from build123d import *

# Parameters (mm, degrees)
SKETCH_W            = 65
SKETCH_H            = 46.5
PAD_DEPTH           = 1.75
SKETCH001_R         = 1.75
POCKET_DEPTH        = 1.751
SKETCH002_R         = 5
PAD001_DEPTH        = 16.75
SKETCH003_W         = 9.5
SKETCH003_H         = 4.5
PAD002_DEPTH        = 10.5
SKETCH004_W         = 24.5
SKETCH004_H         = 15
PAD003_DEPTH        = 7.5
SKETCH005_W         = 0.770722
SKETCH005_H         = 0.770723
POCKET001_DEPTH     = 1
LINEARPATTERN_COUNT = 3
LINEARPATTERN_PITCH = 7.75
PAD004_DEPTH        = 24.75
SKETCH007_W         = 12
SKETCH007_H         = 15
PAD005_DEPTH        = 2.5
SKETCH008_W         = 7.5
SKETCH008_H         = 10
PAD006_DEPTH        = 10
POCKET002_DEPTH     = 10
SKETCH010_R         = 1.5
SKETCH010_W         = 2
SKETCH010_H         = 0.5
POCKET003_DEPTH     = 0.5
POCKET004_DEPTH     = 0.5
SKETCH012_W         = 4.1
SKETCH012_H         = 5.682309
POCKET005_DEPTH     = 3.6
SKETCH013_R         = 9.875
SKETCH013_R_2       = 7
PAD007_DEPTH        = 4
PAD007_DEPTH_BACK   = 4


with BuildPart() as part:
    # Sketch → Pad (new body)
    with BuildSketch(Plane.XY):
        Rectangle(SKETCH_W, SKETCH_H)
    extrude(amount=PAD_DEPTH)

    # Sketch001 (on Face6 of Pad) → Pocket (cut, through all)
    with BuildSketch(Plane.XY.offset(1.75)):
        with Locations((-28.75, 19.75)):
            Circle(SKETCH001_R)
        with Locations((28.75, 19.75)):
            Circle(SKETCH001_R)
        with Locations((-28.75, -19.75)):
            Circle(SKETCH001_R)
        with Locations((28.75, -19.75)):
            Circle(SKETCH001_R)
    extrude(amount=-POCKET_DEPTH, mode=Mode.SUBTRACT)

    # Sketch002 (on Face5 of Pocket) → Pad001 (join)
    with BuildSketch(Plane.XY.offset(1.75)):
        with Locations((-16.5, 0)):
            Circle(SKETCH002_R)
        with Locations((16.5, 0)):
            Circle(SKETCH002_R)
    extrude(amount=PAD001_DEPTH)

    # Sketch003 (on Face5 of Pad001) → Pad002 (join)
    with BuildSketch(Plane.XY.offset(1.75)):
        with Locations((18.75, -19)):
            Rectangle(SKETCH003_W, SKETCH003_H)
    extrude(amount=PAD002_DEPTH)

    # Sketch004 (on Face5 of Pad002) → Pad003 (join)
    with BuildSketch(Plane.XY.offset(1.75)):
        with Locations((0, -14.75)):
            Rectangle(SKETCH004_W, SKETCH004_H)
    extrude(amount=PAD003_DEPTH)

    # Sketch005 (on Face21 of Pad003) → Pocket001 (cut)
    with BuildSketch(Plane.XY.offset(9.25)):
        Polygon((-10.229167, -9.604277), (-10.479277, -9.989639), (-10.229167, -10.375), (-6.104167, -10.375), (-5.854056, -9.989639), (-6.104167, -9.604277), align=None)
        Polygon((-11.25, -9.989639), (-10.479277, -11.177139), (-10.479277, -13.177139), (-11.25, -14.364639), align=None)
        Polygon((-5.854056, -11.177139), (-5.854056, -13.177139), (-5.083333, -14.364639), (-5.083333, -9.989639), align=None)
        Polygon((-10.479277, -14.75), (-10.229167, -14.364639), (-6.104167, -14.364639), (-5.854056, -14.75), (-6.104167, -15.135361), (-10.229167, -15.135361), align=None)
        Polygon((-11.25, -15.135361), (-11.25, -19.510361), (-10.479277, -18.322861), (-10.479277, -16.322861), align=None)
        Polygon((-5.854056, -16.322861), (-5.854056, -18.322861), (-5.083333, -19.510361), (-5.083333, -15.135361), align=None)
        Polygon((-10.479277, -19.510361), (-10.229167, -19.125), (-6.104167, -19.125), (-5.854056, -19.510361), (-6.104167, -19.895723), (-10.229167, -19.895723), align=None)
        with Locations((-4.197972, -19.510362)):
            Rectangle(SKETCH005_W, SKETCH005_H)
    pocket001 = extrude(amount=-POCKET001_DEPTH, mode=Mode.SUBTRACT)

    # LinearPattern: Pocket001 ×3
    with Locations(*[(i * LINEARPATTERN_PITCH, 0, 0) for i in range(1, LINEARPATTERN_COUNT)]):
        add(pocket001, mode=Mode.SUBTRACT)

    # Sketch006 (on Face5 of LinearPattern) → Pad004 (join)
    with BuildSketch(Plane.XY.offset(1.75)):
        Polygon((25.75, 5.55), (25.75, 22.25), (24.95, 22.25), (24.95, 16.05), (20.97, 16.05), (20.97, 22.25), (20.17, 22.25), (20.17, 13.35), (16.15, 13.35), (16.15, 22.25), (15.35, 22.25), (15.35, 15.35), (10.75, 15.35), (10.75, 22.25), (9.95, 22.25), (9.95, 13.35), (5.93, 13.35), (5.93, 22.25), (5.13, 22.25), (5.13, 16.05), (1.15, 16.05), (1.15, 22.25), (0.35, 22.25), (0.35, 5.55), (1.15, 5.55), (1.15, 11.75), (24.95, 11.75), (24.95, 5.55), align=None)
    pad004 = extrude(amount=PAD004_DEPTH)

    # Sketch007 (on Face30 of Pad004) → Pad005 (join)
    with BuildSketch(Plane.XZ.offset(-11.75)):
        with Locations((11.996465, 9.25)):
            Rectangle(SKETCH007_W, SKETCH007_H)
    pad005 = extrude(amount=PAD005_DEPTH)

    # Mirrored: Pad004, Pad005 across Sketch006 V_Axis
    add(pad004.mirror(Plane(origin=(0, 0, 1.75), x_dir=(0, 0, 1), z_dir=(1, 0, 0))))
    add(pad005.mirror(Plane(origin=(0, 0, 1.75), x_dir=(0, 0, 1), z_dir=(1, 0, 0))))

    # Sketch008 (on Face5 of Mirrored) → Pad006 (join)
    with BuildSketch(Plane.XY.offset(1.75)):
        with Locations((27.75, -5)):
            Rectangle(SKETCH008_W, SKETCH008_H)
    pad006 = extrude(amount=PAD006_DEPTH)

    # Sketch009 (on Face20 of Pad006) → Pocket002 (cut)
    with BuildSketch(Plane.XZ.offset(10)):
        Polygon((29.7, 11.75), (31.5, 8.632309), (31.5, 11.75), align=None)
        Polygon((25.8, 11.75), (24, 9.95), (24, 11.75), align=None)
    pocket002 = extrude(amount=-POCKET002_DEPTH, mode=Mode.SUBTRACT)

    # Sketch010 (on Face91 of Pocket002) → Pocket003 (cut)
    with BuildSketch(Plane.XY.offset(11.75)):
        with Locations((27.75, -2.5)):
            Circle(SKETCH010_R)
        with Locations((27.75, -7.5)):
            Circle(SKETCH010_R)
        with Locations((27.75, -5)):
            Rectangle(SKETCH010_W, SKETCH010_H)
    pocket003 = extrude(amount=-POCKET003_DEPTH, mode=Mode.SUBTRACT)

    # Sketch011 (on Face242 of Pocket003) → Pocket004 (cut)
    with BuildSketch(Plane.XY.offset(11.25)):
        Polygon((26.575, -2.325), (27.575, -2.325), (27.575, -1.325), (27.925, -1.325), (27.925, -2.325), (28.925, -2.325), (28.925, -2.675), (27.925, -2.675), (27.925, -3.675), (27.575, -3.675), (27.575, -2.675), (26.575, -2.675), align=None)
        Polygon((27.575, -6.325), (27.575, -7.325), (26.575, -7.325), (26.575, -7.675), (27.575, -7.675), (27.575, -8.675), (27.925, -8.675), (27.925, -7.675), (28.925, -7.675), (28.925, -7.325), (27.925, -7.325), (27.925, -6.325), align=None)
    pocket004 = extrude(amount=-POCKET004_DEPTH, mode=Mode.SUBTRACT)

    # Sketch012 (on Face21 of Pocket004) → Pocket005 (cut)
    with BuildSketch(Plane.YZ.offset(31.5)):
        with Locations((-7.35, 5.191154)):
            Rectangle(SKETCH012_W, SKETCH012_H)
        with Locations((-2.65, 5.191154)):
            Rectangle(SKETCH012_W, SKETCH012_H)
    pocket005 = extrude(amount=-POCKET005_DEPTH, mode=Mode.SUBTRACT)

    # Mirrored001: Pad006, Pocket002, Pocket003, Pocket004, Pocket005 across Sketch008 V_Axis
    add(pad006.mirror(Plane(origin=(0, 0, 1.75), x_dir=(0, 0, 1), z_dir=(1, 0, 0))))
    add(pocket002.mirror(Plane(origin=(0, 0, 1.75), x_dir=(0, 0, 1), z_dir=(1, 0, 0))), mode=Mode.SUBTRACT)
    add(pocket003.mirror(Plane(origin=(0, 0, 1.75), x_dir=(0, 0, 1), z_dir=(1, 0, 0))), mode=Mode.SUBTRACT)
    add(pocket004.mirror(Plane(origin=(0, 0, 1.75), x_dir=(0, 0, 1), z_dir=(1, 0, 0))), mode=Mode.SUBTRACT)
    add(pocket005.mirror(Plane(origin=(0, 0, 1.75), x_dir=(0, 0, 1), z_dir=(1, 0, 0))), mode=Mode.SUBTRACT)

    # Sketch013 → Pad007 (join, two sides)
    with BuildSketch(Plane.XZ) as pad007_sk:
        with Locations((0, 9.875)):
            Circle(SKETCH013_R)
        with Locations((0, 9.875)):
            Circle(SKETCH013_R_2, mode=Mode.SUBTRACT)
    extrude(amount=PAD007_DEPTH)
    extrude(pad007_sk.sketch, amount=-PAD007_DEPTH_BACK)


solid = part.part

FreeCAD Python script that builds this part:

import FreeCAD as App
import Part
import Sketcher
Q = App.Units.Quantity


def add_polygon(sketch, points):
    """Adds a closed chain of lines whose ends are joined by coincident constraints."""
    first, n = sketch.GeometryCount, len(points)
    for a, b in zip(points, points[1:] + points[:1]):
        sketch.addGeometry(Part.LineSegment(App.Vector(*a, 0), App.Vector(*b, 0)), False)
    for i in range(n):
        sketch.addConstraint(Sketcher.Constraint("Coincident", first + i, 2, first + (i + 1) % n, 1))

doc = App.newDocument("Part")
body = doc.addObject("PartDesign::Body", "Body")

sketch1 = doc.addObject("Sketcher::SketchObject", "Sketch")
body.addObject(sketch1)
sketch1.AttachmentSupport = (doc.XY_Plane, [""])
sketch1.MapMode = "FlatFace"
add_polygon(sketch1, [(-32, 23), (-32, -23), (32, -23), (32, 23)])
sketch1.addConstraint(Sketcher.Constraint("Vertical", 0))
sketch1.addConstraint(Sketcher.Constraint("Horizontal", 1))
sketch1.addConstraint(Sketcher.Constraint("Vertical", 2))
sketch1.addConstraint(Sketcher.Constraint("Horizontal", 3))
sketch1.addConstraint(Sketcher.Constraint("Symmetric", 0, 2, 2, 2, -1, 1))
sketch1.addConstraint(Sketcher.Constraint("DistanceX", 1, 1, 1, 2, 65.0))
sketch1.addConstraint(Sketcher.Constraint("DistanceY", 0, 2, 0, 1, 46.5))
pad1 = doc.addObject("PartDesign::Pad", "Pad")
body.addObject(pad1)
pad1.Profile = sketch1
pad1.Length = 1.75

sketch2 = doc.addObject("Sketcher::SketchObject", "Sketch001")
body.addObject(sketch2)
sketch2.AttachmentSupport = (doc.XY_Plane, [""])
sketch2.MapMode = "FlatFace"
sketch2.AttachmentOffset = App.Placement(App.Vector(0, 0, 1.75), App.Rotation())
sketch2.addGeometry(Part.Circle(App.Vector(-28.8, 19.8, 0), App.Vector(0, 0, 1), 1.8), False)
sketch2.addGeometry(Part.Circle(App.Vector(28.8, 19.8, 0), App.Vector(0, 0, 1), 1.8), False)
sketch2.addGeometry(Part.Circle(App.Vector(-28.8, -19.8, 0), App.Vector(0, 0, 1), 1.8), False)
sketch2.addGeometry(Part.Circle(App.Vector(28.8, -19.8, 0), App.Vector(0, 0, 1), 1.8), False)
sketch2.addConstraint(Sketcher.Constraint("Equal", 0, 1))
sketch2.addConstraint(Sketcher.Constraint("Equal", 1, 2))
sketch2.addConstraint(Sketcher.Constraint("Equal", 2, 3))
sketch2.addConstraint(Sketcher.Constraint("Symmetric", 1, 3, 2, 3, -1, 1))
sketch2.addConstraint(Sketcher.Constraint("Symmetric", 0, 3, 3, 3, -1, 1))
sketch2.addConstraint(Sketcher.Constraint("Symmetric", 0, 3, 1, 3, -2))
sketch2.addConstraint(Sketcher.Constraint("Diameter", 0, 3.5))
sketch2.addConstraint(Sketcher.Constraint("DistanceX", 0, 3, 1, 3, 57.5))
sketch2.addConstraint(Sketcher.Constraint("DistanceY", 2, 3, 0, 3, 39.5))
pocket1 = doc.addObject("PartDesign::Pocket", "Pocket")
body.addObject(pocket1)
pocket1.Profile = sketch2
pocket1.Type = "ThroughAll"

sketch3 = doc.addObject("Sketcher::SketchObject", "Sketch002")
body.addObject(sketch3)
sketch3.AttachmentSupport = (doc.XY_Plane, [""])
sketch3.MapMode = "FlatFace"
sketch3.AttachmentOffset = App.Placement(App.Vector(0, 0, 1.75), App.Rotation())
sketch3.addGeometry(Part.Circle(App.Vector(-16, 0, 0), App.Vector(0, 0, 1), 5), False)
sketch3.addGeometry(Part.Circle(App.Vector(16, 0, 0), App.Vector(0, 0, 1), 5), False)
sketch3.addConstraint(Sketcher.Constraint("Equal", 0, 1))
sketch3.addConstraint(Sketcher.Constraint("Symmetric", 0, 3, 1, 3, -1, 1))
sketch3.addConstraint(Sketcher.Constraint("PointOnObject", 0, 3, -1))
sketch3.addConstraint(Sketcher.Constraint("Diameter", 0, 10.0))
sketch3.addConstraint(Sketcher.Constraint("DistanceX", 0, 3, 1, 3, 33.0))
pad2 = doc.addObject("PartDesign::Pad", "Pad001")
body.addObject(pad2)
pad2.Profile = sketch3
pad2.Length = 16.75

sketch4 = doc.addObject("Sketcher::SketchObject", "Sketch003")
body.addObject(sketch4)
sketch4.AttachmentSupport = (doc.XY_Plane, [""])
sketch4.MapMode = "FlatFace"
sketch4.AttachmentOffset = App.Placement(App.Vector(0, 0, 1.75), App.Rotation())
add_polygon(sketch4, [(14, -16.8), (14, -21.2), (23.5, -21.2), (23.5, -16.8)])
sketch4.addConstraint(Sketcher.Constraint("Vertical", 0))
sketch4.addConstraint(Sketcher.Constraint("Horizontal", 1))
sketch4.addConstraint(Sketcher.Constraint("Vertical", 2))
sketch4.addConstraint(Sketcher.Constraint("Horizontal", 3))
sketch4.addConstraint(Sketcher.Constraint("DistanceX", 1, 1, 1, 2, 9.5))
sketch4.addConstraint(Sketcher.Constraint("DistanceY", 0, 2, 0, 1, 4.5))
sketch4.addConstraint(Sketcher.Constraint("DistanceX", -1, 1, 0, 2, 14.0))
sketch4.addConstraint(Sketcher.Constraint("DistanceY", 0, 2, -1, 1, 21.25))
pad3 = doc.addObject("PartDesign::Pad", "Pad002")
body.addObject(pad3)
pad3.Profile = sketch4
pad3.Length = 10.5

sketch5 = doc.addObject("Sketcher::SketchObject", "Sketch004")
body.addObject(sketch5)
sketch5.AttachmentSupport = (doc.XY_Plane, [""])
sketch5.MapMode = "FlatFace"
sketch5.AttachmentOffset = App.Placement(App.Vector(0, 0, 1.75), App.Rotation())
add_polygon(sketch5, [(-12, -7), (-12, -22), (12, -22), (12, -7)])
sketch5.addConstraint(Sketcher.Constraint("Vertical", 0))
sketch5.addConstraint(Sketcher.Constraint("Horizontal", 1))
sketch5.addConstraint(Sketcher.Constraint("Vertical", 2))
sketch5.addConstraint(Sketcher.Constraint("Horizontal", 3))
sketch5.addConstraint(Sketcher.Constraint("DistanceY", 0, 2, 0, 1, 15.0))
sketch5.addConstraint(Sketcher.Constraint("DistanceX", 1, 1, 1, 2, 24.5))
sketch5.addConstraint(Sketcher.Constraint("DistanceX", 0, 2, -1, 1, 12.25))
sketch5.addConstraint(Sketcher.Constraint("DistanceY", 0, 2, -1, 1, 22.25))
pad4 = doc.addObject("PartDesign::Pad", "Pad003")
body.addObject(pad4)
pad4.Profile = sketch5
pad4.Length = 7.5

sketch6 = doc.addObject("Sketcher::SketchObject", "Sketch005")
body.addObject(sketch6)
sketch6.AttachmentSupport = (doc.XY_Plane, [""])
sketch6.MapMode = "FlatFace"
sketch6.AttachmentOffset = App.Placement(App.Vector(0, 0, 9.25), App.Rotation())
add_polygon(sketch6, [(-10.23, -9.6), (-10.48, -9.99), (-10.23, -10.38), (-6.1, -10.38), (-5.85, -9.99), (-6.1, -9.6)])
add_polygon(sketch6, [(-10.48, -11.18), (-11.25, -9.99), (-11.25, -14.36), (-10.48, -13.18)])
add_polygon(sketch6, [(-5.85, -11.18), (-5.85, -13.18), (-5.08, -14.36), (-5.08, -9.99)])
add_polygon(sketch6, [(-10.23, -14.36), (-10.48, -14.75), (-10.23, -15.14), (-6.1, -15.14), (-5.85, -14.75), (-6.1, -14.36)])
add_polygon(sketch6, [(-11.25, -15.14), (-11.25, -19.51), (-10.48, -18.32), (-10.48, -16.32)])
add_polygon(sketch6, [(-5.85, -16.32), (-5.85, -18.32), (-5.08, -19.51), (-5.08, -15.14)])
add_polygon(sketch6, [(-10.23, -19.12), (-10.48, -19.51), (-10.23, -19.9), (-6.1, -19.9), (-5.85, -19.51), (-6.1, -19.12)])
add_polygon(sketch6, [(-4.58, -19.13), (-4.58, -19.9), (-3.81, -19.9), (-3.81, -19.13)])
sketch6.addConstraint(Sketcher.Constraint("Horizontal", 2))
sketch6.addConstraint(Sketcher.Constraint("Horizontal", 5))
sketch6.addConstraint(Sketcher.Constraint("Vertical", 7))
sketch6.addConstraint(Sketcher.Constraint("Vertical", 9))
sketch6.addConstraint(Sketcher.Constraint("Vertical", 10))
sketch6.addConstraint(Sketcher.Constraint("Vertical", 12))
sketch6.addConstraint(Sketcher.Constraint("Horizontal", 16))
sketch6.addConstraint(Sketcher.Constraint("Horizontal", 19))
sketch6.addConstraint(Sketcher.Constraint("Vertical", 20))
sketch6.addConstraint(Sketcher.Constraint("Vertical", 22))
sketch6.addConstraint(Sketcher.Constraint("Vertical", 24))
sketch6.addConstraint(Sketcher.Constraint("Vertical", 26))
sketch6.addConstraint(Sketcher.Constraint("Horizontal", 30))
sketch6.addConstraint(Sketcher.Constraint("Horizontal", 33))
sketch6.addConstraint(Sketcher.Constraint("Vertical", 34))
sketch6.addConstraint(Sketcher.Constraint("Horizontal", 35))
sketch6.addConstraint(Sketcher.Constraint("Vertical", 36))
sketch6.addConstraint(Sketcher.Constraint("Horizontal", 37))
sketch6.addConstraint(Sketcher.Constraint("Parallel", 1, 4))
sketch6.addConstraint(Sketcher.Constraint("Parallel", 4, 6))
sketch6.addConstraint(Sketcher.Constraint("Parallel", 3, 8))
sketch6.addConstraint(Sketcher.Constraint("Parallel", 6, 11))
sketch6.addConstraint(Sketcher.Constraint("Parallel", 8, 13))
sketch6.addConstraint(Sketcher.Constraint("Parallel", 13, 14))
sketch6.addConstraint(Sketcher.Constraint("Parallel", 11, 15))
sketch6.addConstraint(Sketcher.Constraint("Parallel", 14, 17))
sketch6.addConstraint(Sketcher.Constraint("Parallel", 15, 18))
sketch6.addConstraint(Sketcher.Constraint("Parallel", 17, 21))
sketch6.addConstraint(Sketcher.Constraint("Parallel", 18, 23))
sketch6.addConstraint(Sketcher.Constraint("Parallel", 23, 25))
sketch6.addConstraint(Sketcher.Constraint("Parallel", 21, 27))
sketch6.addConstraint(Sketcher.Constraint("Parallel", 27, 28))
sketch6.addConstraint(Sketcher.Constraint("Parallel", 15, 29))
sketch6.addConstraint(Sketcher.Constraint("Parallel", 28, 31))
sketch6.addConstraint(Sketcher.Constraint("Parallel", 25, 32))
sketch6.addConstraint(Sketcher.Constraint("Horizontal", 0, 2, 3, 2))
sketch6.addConstraint(Sketcher.Constraint("Horizontal", 3, 2, 6, 2))
sketch6.addConstraint(Sketcher.Constraint("Horizontal", 8, 2, 10, 2))
sketch6.addConstraint(Sketcher.Constraint("Horizontal", 7, 2, 11, 2))
sketch6.addConstraint(Sketcher.Constraint("Horizontal", 6, 2, 12, 2))
sketch6.addConstraint(Sketcher.Constraint("Horizontal", 9, 2, 13, 2))
sketch6.addConstraint(Sketcher.Constraint("Horizontal", 14, 2, 17, 2))
sketch6.addConstraint(Sketcher.Constraint("Horizontal", 11, 2, 18, 2))
sketch6.addConstraint(Sketcher.Constraint("Horizontal", 16, 2, 23, 2))
sketch6.addConstraint(Sketcher.Constraint("Horizontal", 21, 2, 24, 2))
sketch6.addConstraint(Sketcher.Constraint("Horizontal", 20, 2, 25, 2))
sketch6.addConstraint(Sketcher.Constraint("Horizontal", 23, 2, 26, 2))
sketch6.addConstraint(Sketcher.Constraint("Horizontal", 25, 2, 28, 2))
sketch6.addConstraint(Sketcher.Constraint("Horizontal", 28, 2, 31, 2))
sketch6.addConstraint(Sketcher.Constraint("Horizontal", 30, 2, 34, 2))
sketch6.addConstraint(Sketcher.Constraint("Horizontal", 33, 2, 36, 2))
sketch6.addConstraint(Sketcher.Constraint("Vertical", 2, 2, 4, 2))
sketch6.addConstraint(Sketcher.Constraint("Vertical", 1, 2, 5, 2))
sketch6.addConstraint(Sketcher.Constraint("Vertical", 0, 2, 8, 2))
sketch6.addConstraint(Sketcher.Constraint("Vertical", 3, 2, 10, 2))
sketch6.addConstraint(Sketcher.Constraint("Vertical", 9, 2, 14, 2))
sketch6.addConstraint(Sketcher.Constraint("Vertical", 5, 2, 15, 2))
sketch6.addConstraint(Sketcher.Constraint("Vertical", 4, 2, 16, 2))
sketch6.addConstraint(Sketcher.Constraint("Vertical", 16, 2, 18, 2))
sketch6.addConstraint(Sketcher.Constraint("Vertical", 7, 2, 20, 2))
sketch6.addConstraint(Sketcher.Constraint("Vertical", 14, 2, 21, 2))
sketch6.addConstraint(Sketcher.Constraint("Vertical", 17, 2, 24, 2))
sketch6.addConstraint(Sketcher.Constraint("Vertical", 22, 2, 28, 2))
sketch6.addConstraint(Sketcher.Constraint("Vertical", 19, 2, 29, 2))
sketch6.addConstraint(Sketcher.Constraint("Vertical", 18, 2, 30, 2))
sketch6.addConstraint(Sketcher.Constraint("Vertical", 30, 2, 32, 2))
sketch6.addConstraint(Sketcher.Constraint("Equal", 12, 20))
sketch6.addConstraint(Sketcher.Constraint("Equal", 37, 34))
sketch6.addConstraint(Sketcher.Constraint("DistanceY", 9, 1, 9, 2, 2.0))
sketch6.addConstraint(Sketcher.Constraint("DistanceX", 25, 2, 34, 2, 0.5))
sketch6.addConstraint(Sketcher.Constraint("DistanceX", 2, 1, 2, 2, 4.125))
sketch6.addConstraint(Sketcher.Constraint("DistanceY", 7, 2, 7, 1, 4.375))
sketch6.addConstraint(Sketcher.Constraint("DistanceX", 6, 2, -1, 1, 11.25))
sketch6.addConstraint(Sketcher.Constraint("DistanceY", 14, 2, -1, 1, 14.75))
sketch6.addConstraint(Sketcher.Constraint("DistanceX", 35, 1, 35, 2, 0.770722))
sketch6.addConstraint(Sketcher.Constraint("Distance", 0, 0.459411))
pocket2 = doc.addObject("PartDesign::Pocket", "Pocket001")
body.addObject(pocket2)
pocket2.Profile = sketch6
pocket2.Length = 1
doc.recompute()

linearpattern = doc.addObject("PartDesign::LinearPattern", "LinearPattern")
body.addObject(linearpattern)
linearpattern.Originals = [pocket2]
linearpattern.Direction = (doc.X_Axis, [""])
linearpattern.Mode = "offset"
linearpattern.Offset = 7.75
linearpattern.Occurrences = 3
body.Tip = linearpattern

sketch7 = doc.addObject("Sketcher::SketchObject", "Sketch006")
body.addObject(sketch7)
sketch7.AttachmentSupport = (doc.XY_Plane, [""])
sketch7.MapMode = "FlatFace"
sketch7.AttachmentOffset = App.Placement(App.Vector(0, 0, 1.75), App.Rotation())
add_polygon(sketch7, [(25.8, 5.5), (25.8, 22.2), (24.9, 22.2), (24.9, 16.1), (21, 16.1), (21, 22.2), (20.2, 22.2), (20.2, 13.3), (16.1, 13.3), (16.1, 22.2), (15.3, 22.2), (15.3, 15.3), (10.8, 15.3), (10.8, 22.2), (9.9, 22.2), (9.9, 13.3), (5.9, 13.3), (5.9, 22.2), (5.1, 22.2), (5.1, 16.1), (1.1, 16.1), (1.1, 22.2), (0.3, 22.2), (0.3, 5.5), (1.1, 5.5), (1.1, 11.8), (24.9, 11.8), (24.9, 5.5)])
sketch7.addConstraint(Sketcher.Constraint("Vertical", 0))
sketch7.addConstraint(Sketcher.Constraint("Horizontal", 1))
sketch7.addConstraint(Sketcher.Constraint("Vertical", 2))
sketch7.addConstraint(Sketcher.Constraint("Horizontal", 3))
sketch7.addConstraint(Sketcher.Constraint("Vertical", 4))
sketch7.addConstraint(Sketcher.Constraint("Horizontal", 5))
sketch7.addConstraint(Sketcher.Constraint("Vertical", 6))
sketch7.addConstraint(Sketcher.Constraint("Horizontal", 7))
sketch7.addConstraint(Sketcher.Constraint("Vertical", 8))
sketch7.addConstraint(Sketcher.Constraint("Horizontal", 9))
sketch7.addConstraint(Sketcher.Constraint("Vertical", 10))
sketch7.addConstraint(Sketcher.Constraint("Horizontal", 11))
sketch7.addConstraint(Sketcher.Constraint("Vertical", 12))
sketch7.addConstraint(Sketcher.Constraint("Horizontal", 13))
sketch7.addConstraint(Sketcher.Constraint("Vertical", 14))
sketch7.addConstraint(Sketcher.Constraint("Horizontal", 15))
sketch7.addConstraint(Sketcher.Constraint("Vertical", 16))
sketch7.addConstraint(Sketcher.Constraint("Horizontal", 17))
sketch7.addConstraint(Sketcher.Constraint("Vertical", 18))
sketch7.addConstraint(Sketcher.Constraint("Horizontal", 19))
sketch7.addConstraint(Sketcher.Constraint("Vertical", 20))
sketch7.addConstraint(Sketcher.Constraint("Horizontal", 21))
sketch7.addConstraint(Sketcher.Constraint("Vertical", 22))
sketch7.addConstraint(Sketcher.Constraint("Horizontal", 23))
sketch7.addConstraint(Sketcher.Constraint("Vertical", 24))
sketch7.addConstraint(Sketcher.Constraint("Horizontal", 25))
sketch7.addConstraint(Sketcher.Constraint("Vertical", 26))
sketch7.addConstraint(Sketcher.Constraint("Horizontal", 27))
sketch7.addConstraint(Sketcher.Constraint("Horizontal", 1, 2, 4, 2))
sketch7.addConstraint(Sketcher.Constraint("Horizontal", 5, 2, 8, 2))
sketch7.addConstraint(Sketcher.Constraint("Horizontal", 9, 2, 12, 2))
sketch7.addConstraint(Sketcher.Constraint("Horizontal", 7, 2, 14, 2))
sketch7.addConstraint(Sketcher.Constraint("Horizontal", 13, 2, 16, 2))
sketch7.addConstraint(Sketcher.Constraint("Horizontal", 3, 2, 18, 2))
sketch7.addConstraint(Sketcher.Constraint("Horizontal", 17, 2, 20, 2))
sketch7.addConstraint(Sketcher.Constraint("Horizontal", 23, 2, 26, 2))
sketch7.addConstraint(Sketcher.Constraint("Vertical", 20, 2, 23, 2))
sketch7.addConstraint(Sketcher.Constraint("Vertical", 2, 2, 25, 2))
sketch7.addConstraint(Sketcher.Constraint("Equal", 1, 5))
sketch7.addConstraint(Sketcher.Constraint("Equal", 5, 9))
sketch7.addConstraint(Sketcher.Constraint("Equal", 9, 13))
sketch7.addConstraint(Sketcher.Constraint("Equal", 7, 15))
sketch7.addConstraint(Sketcher.Constraint("Equal", 13, 17))
sketch7.addConstraint(Sketcher.Constraint("Equal", 3, 19))
sketch7.addConstraint(Sketcher.Constraint("Equal", 17, 21))
sketch7.addConstraint(Sketcher.Constraint("Equal", 20, 24))
sketch7.addConstraint(Sketcher.Constraint("DistanceX", 1, 2, 1, 1, 0.8))
sketch7.addConstraint(Sketcher.Constraint("DistanceX", 11, 2, 11, 1, 4.6))
sketch7.addConstraint(Sketcher.Constraint("DistanceX", 25, 1, 25, 2, 23.8))
sketch7.addConstraint(Sketcher.Constraint("DistanceY", 0, 1, 0, 2, 16.7))
sketch7.addConstraint(Sketcher.Constraint("DistanceY", 2, 2, 2, 1, 6.2))
sketch7.addConstraint(Sketcher.Constraint("DistanceY", 6, 2, 6, 1, 8.9))
sketch7.addConstraint(Sketcher.Constraint("DistanceY", 10, 2, 10, 1, 6.9))
sketch7.addConstraint(Sketcher.Constraint("DistanceX", 3, 2, 3, 1, 3.98))
sketch7.addConstraint(Sketcher.Constraint("DistanceX", -1, 1, 0, 2, 25.75))
sketch7.addConstraint(Sketcher.Constraint("DistanceY", -1, 1, 0, 2, 22.25))
pad5 = doc.addObject("PartDesign::Pad", "Pad004")
body.addObject(pad5)
pad5.Profile = sketch7
pad5.Length = 24.75

sketch8 = doc.addObject("Sketcher::SketchObject", "Sketch007")
body.addObject(sketch8)
sketch8.AttachmentSupport = (doc.XZ_Plane, [""])
sketch8.MapMode = "FlatFace"
sketch8.AttachmentOffset = App.Placement(App.Vector(0, 0, -11.75), App.Rotation())
add_polygon(sketch8, [(6, 17), (6, 2), (18, 2), (18, 17)])
sketch8.addConstraint(Sketcher.Constraint("Vertical", 0))
sketch8.addConstraint(Sketcher.Constraint("Horizontal", 1))
sketch8.addConstraint(Sketcher.Constraint("Vertical", 2))
sketch8.addConstraint(Sketcher.Constraint("Horizontal", 3))
sketch8.addConstraint(Sketcher.Constraint("DistanceX", 1, 1, 1, 2, 12.0))
sketch8.addConstraint(Sketcher.Constraint("DistanceY", 0, 2, 0, 1, 15.0))
sketch8.addConstraint(Sketcher.Constraint("DistanceY", -1, 1, 0, 2, 1.75))
sketch8.addConstraint(Sketcher.Constraint("DistanceX", -1, 1, 0, 2, 5.996465))
pad6 = doc.addObject("PartDesign::Pad", "Pad005")
body.addObject(pad6)
pad6.Profile = sketch8
pad6.Length = 2.5
doc.recompute()

mirrored = doc.addObject("PartDesign::Mirrored", "Mirrored")
body.addObject(mirrored)
mirrored.Originals = [pad5, pad6]
mirrored.MirrorPlane = (doc.YZ_Plane, [""])
body.Tip = mirrored

sketch9 = doc.addObject("Sketcher::SketchObject", "Sketch008")
body.addObject(sketch9)
sketch9.AttachmentSupport = (doc.XY_Plane, [""])
sketch9.MapMode = "FlatFace"
sketch9.AttachmentOffset = App.Placement(App.Vector(0, 0, 1.75), App.Rotation())
add_polygon(sketch9, [(24, 0), (24, -10), (32, -10), (32, 0)])
sketch9.addConstraint(Sketcher.Constraint("Vertical", 0))
sketch9.addConstraint(Sketcher.Constraint("Horizontal", 1))
sketch9.addConstraint(Sketcher.Constraint("Vertical", 2))
sketch9.addConstraint(Sketcher.Constraint("Horizontal", 3))
sketch9.addConstraint(Sketcher.Constraint("PointOnObject", 2, 2, -1))
sketch9.addConstraint(Sketcher.Constraint("DistanceY", 0, 2, 0, 1, 10.0))
sketch9.addConstraint(Sketcher.Constraint("DistanceX", 1, 1, 1, 2, 7.5))
sketch9.addConstraint(Sketcher.Constraint("DistanceX", -1, 1, 0, 2, 24.0))
pad7 = doc.addObject("PartDesign::Pad", "Pad006")
body.addObject(pad7)
pad7.Profile = sketch9
pad7.Length = 10

sketch10 = doc.addObject("Sketcher::SketchObject", "Sketch009")
body.addObject(sketch10)
sketch10.AttachmentSupport = (doc.XZ_Plane, [""])
sketch10.MapMode = "FlatFace"
sketch10.AttachmentOffset = App.Placement(App.Vector(0, 0, 10), App.Rotation())
add_polygon(sketch10, [(29.7, 11.8), (31.5, 8.6), (31.5, 11.8)])
add_polygon(sketch10, [(24, 9.9), (25.8, 11.8), (24, 11.8)])
sketch10.addConstraint(Sketcher.Constraint("Vertical", 1))
sketch10.addConstraint(Sketcher.Constraint("Horizontal", 2))
sketch10.addConstraint(Sketcher.Constraint("Horizontal", 4))
sketch10.addConstraint(Sketcher.Constraint("Vertical", 5))
sketch10.addConstraint(Sketcher.Constraint("Horizontal", 2, 2, 3, 2))
sketch10.addConstraint(Sketcher.Constraint("Equal", 2, 4))
sketch10.addConstraint(Sketcher.Constraint("Equal", 4, 5))
sketch10.addConstraint(Sketcher.Constraint("Angle", 0, Q("-59.999996 deg")))
sketch10.addConstraint(Sketcher.Constraint("DistanceX", 2, 2, 2, 1, 1.8))
sketch10.addConstraint(Sketcher.Constraint("DistanceX", -1, 1, 4, 2, 24.0))
sketch10.addConstraint(Sketcher.Constraint("DistanceX", -1, 1, 0, 2, 31.5))
sketch10.addConstraint(Sketcher.Constraint("DistanceY", -1, 1, 1, 2, 11.75))
pocket3 = doc.addObject("PartDesign::Pocket", "Pocket002")
body.addObject(pocket3)
pocket3.Profile = sketch10
pocket3.Length = 10

sketch11 = doc.addObject("Sketcher::SketchObject", "Sketch010")
body.addObject(sketch11)
sketch11.AttachmentSupport = (doc.XY_Plane, [""])
sketch11.MapMode = "FlatFace"
sketch11.AttachmentOffset = App.Placement(App.Vector(0, 0, 11.75), App.Rotation())
sketch11.addGeometry(Part.Circle(App.Vector(27.8, -2.5, 0), App.Vector(0, 0, 1), 1.5), False)
sketch11.addGeometry(Part.Circle(App.Vector(27.8, -7.5, 0), App.Vector(0, 0, 1), 1.5), False)
add_polygon(sketch11, [(26.8, -4.8), (26.8, -5.2), (28.8, -5.2), (28.8, -4.8)])
sketch11.addConstraint(Sketcher.Constraint("Vertical", 2))
sketch11.addConstraint(Sketcher.Constraint("Horizontal", 3))
sketch11.addConstraint(Sketcher.Constraint("Vertical", 4))
sketch11.addConstraint(Sketcher.Constraint("Horizontal", 5))
sketch11.addConstraint(Sketcher.Constraint("Equal", 0, 1))
sketch11.addConstraint(Sketcher.Constraint("Vertical", 0, 3, 1, 3))
sketch11.addConstraint(Sketcher.Constraint("Diameter", 0, 3.0))
sketch11.addConstraint(Sketcher.Constraint("DistanceX", 3, 1, 3, 2, 2.0))
sketch11.addConstraint(Sketcher.Constraint("DistanceY", 2, 2, 2, 1, 0.5))
sketch11.addConstraint(Sketcher.Constraint("DistanceY", 1, 3, 0, 3, 5.0))
sketch11.addConstraint(Sketcher.Constraint("DistanceX", 2, 2, 1, 3, 1.0))
sketch11.addConstraint(Sketcher.Constraint("DistanceY", 0, 3, -1, 1, 2.5))
sketch11.addConstraint(Sketcher.Constraint("DistanceX", -1, 1, 0, 3, 27.75))
sketch11.addConstraint(Sketcher.Constraint("DistanceY", 2, 2, -1, 1, 5.25))
pocket4 = doc.addObject("PartDesign::Pocket", "Pocket003")
body.addObject(pocket4)
pocket4.Profile = sketch11
pocket4.Length = 0.5

sketch12 = doc.addObject("Sketcher::SketchObject", "Sketch011")
body.addObject(sketch12)
sketch12.AttachmentSupport = (doc.XY_Plane, [""])
sketch12.MapMode = "FlatFace"
sketch12.AttachmentOffset = App.Placement(App.Vector(0, 0, 11.25), App.Rotation())
add_polygon(sketch12, [(27.57, -2.33), (26.57, -2.33), (26.57, -2.67), (27.57, -2.67), (27.57, -3.67), (27.93, -3.67), (27.93, -2.67), (28.93, -2.67), (28.93, -2.33), (27.93, -2.33), (27.93, -1.32), (27.57, -1.32)])
add_polygon(sketch12, [(27.57, -6.33), (27.57, -7.33), (26.57, -7.33), (26.57, -7.67), (27.57, -7.67), (27.57, -8.68), (27.93, -8.68), (27.93, -7.67), (28.93, -7.67), (28.93, -7.33), (27.93, -7.33), (27.93, -6.33)])
sketch12.addConstraint(Sketcher.Constraint("Horizontal", 0))
sketch12.addConstraint(Sketcher.Constraint("Vertical", 1))
sketch12.addConstraint(Sketcher.Constraint("Horizontal", 2))
sketch12.addConstraint(Sketcher.Constraint("Vertical", 3))
sketch12.addConstraint(Sketcher.Constraint("Horizontal", 4))
sketch12.addConstraint(Sketcher.Constraint("Vertical", 5))
sketch12.addConstraint(Sketcher.Constraint("Horizontal", 6))
sketch12.addConstraint(Sketcher.Constraint("Vertical", 7))
sketch12.addConstraint(Sketcher.Constraint("Horizontal", 8))
sketch12.addConstraint(Sketcher.Constraint("Vertical", 9))
sketch12.addConstraint(Sketcher.Constraint("Horizontal", 10))
sketch12.addConstraint(Sketcher.Constraint("Vertical", 11))
sketch12.addConstraint(Sketcher.Constraint("Vertical", 12))
sketch12.addConstraint(Sketcher.Constraint("Horizontal", 13))
sketch12.addConstraint(Sketcher.Constraint("Vertical", 14))
sketch12.addConstraint(Sketcher.Constraint("Horizontal", 15))
sketch12.addConstraint(Sketcher.Constraint("Vertical", 16))
sketch12.addConstraint(Sketcher.Constraint("Horizontal", 17))
sketch12.addConstraint(Sketcher.Constraint("Vertical", 18))
sketch12.addConstraint(Sketcher.Constraint("Horizontal", 19))
sketch12.addConstraint(Sketcher.Constraint("Vertical", 20))
sketch12.addConstraint(Sketcher.Constraint("Horizontal", 21))
sketch12.addConstraint(Sketcher.Constraint("Vertical", 22))
sketch12.addConstraint(Sketcher.Constraint("Horizontal", 23))
sketch12.addConstraint(Sketcher.Constraint("Horizontal", 2, 2, 5, 2))
sketch12.addConstraint(Sketcher.Constraint("Horizontal", 0, 2, 7, 2))
sketch12.addConstraint(Sketcher.Constraint("Horizontal", 15, 2, 18, 2))
sketch12.addConstraint(Sketcher.Constraint("Horizontal", 13, 2, 20, 2))
sketch12.addConstraint(Sketcher.Constraint("Vertical", 5, 2, 8, 2))
sketch12.addConstraint(Sketcher.Constraint("Vertical", 3, 2, 10, 2))
sketch12.addConstraint(Sketcher.Constraint("Vertical", 11, 2, 12, 2))
sketch12.addConstraint(Sketcher.Constraint("Vertical", 1, 2, 13, 2))
sketch12.addConstraint(Sketcher.Constraint("Vertical", 12, 2, 15, 2))
sketch12.addConstraint(Sketcher.Constraint("Vertical", 9, 2, 17, 2))
sketch12.addConstraint(Sketcher.Constraint("Vertical", 7, 2, 19, 2))
sketch12.addConstraint(Sketcher.Constraint("Vertical", 18, 2, 21, 2))
sketch12.addConstraint(Sketcher.Constraint("Equal", 2, 6))
sketch12.addConstraint(Sketcher.Constraint("Equal", 23, 1))
sketch12.addConstraint(Sketcher.Constraint("Equal", 21, 3))
sketch12.addConstraint(Sketcher.Constraint("Equal", 5, 9))
sketch12.addConstraint(Sketcher.Constraint("Equal", 11, 12))
sketch12.addConstraint(Sketcher.Constraint("Equal", 7, 14))
sketch12.addConstraint(Sketcher.Constraint("Equal", 12, 16))
sketch12.addConstraint(Sketcher.Constraint("DistanceX", 0, 2, 0, 1, 1.0))
sketch12.addConstraint(Sketcher.Constraint("DistanceY", 14, 2, 3, 2, 4.0))
sketch12.addConstraint(Sketcher.Constraint("DistanceX", 4, 1, 4, 2, 0.35))
sketch12.addConstraint(Sketcher.Constraint("DistanceX", -1, 1, 0, 2, 26.575))
sketch12.addConstraint(Sketcher.Constraint("DistanceY", 0, 2, -1, 1, 2.325))
pocket5 = doc.addObject("PartDesign::Pocket", "Pocket004")
body.addObject(pocket5)
pocket5.Profile = sketch12
pocket5.Length = 0.5

sketch13 = doc.addObject("Sketcher::SketchObject", "Sketch012")
body.addObject(sketch13)
sketch13.AttachmentSupport = (doc.YZ_Plane, [""])
sketch13.MapMode = "FlatFace"
sketch13.AttachmentOffset = App.Placement(App.Vector(0, 0, 31.5), App.Rotation())
add_polygon(sketch13, [(-9.4, 8), (-9.4, 2.3), (-5.3, 2.3), (-5.3, 8)])
add_polygon(sketch13, [(-4.7, 8), (-4.7, 2.3), (-0.6, 2.3), (-0.6, 8)])
sketch13.addConstraint(Sketcher.Constraint("Vertical", 0))
sketch13.addConstraint(Sketcher.Constraint("Horizontal", 1))
sketch13.addConstraint(Sketcher.Constraint("Vertical", 2))
sketch13.addConstraint(Sketcher.Constraint("Horizontal", 3))
sketch13.addConstraint(Sketcher.Constraint("Vertical", 4))
sketch13.addConstraint(Sketcher.Constraint("Horizontal", 5))
sketch13.addConstraint(Sketcher.Constraint("Vertical", 6))
sketch13.addConstraint(Sketcher.Constraint("Horizontal", 7))
sketch13.addConstraint(Sketcher.Constraint("Horizontal", 1, 2, 4, 2))
sketch13.addConstraint(Sketcher.Constraint("Horizontal", 3, 2, 6, 2))
sketch13.addConstraint(Sketcher.Constraint("Equal", 3, 5))
sketch13.addConstraint(Sketcher.Constraint("DistanceX", 1, 1, 1, 2, 4.1))
sketch13.addConstraint(Sketcher.Constraint("DistanceX", 0, 2, -1, 1, 9.4))
sketch13.addConstraint(Sketcher.Constraint("DistanceX", 4, 2, -1, 1, 4.7))
sketch13.addConstraint(Sketcher.Constraint("DistanceY", -1, 1, 0, 2, 2.35))
sketch13.addConstraint(Sketcher.Constraint("DistanceY", 0, 2, 0, 1, 5.682309))
pocket6 = doc.addObject("PartDesign::Pocket", "Pocket005")
body.addObject(pocket6)
pocket6.Profile = sketch13
pocket6.Length = 3.6
doc.recompute()

mirrored2 = doc.addObject("PartDesign::Mirrored", "Mirrored001")
body.addObject(mirrored2)
mirrored2.Originals = [pad7, pocket3, pocket4, pocket5, pocket6]
mirrored2.MirrorPlane = (doc.YZ_Plane, [""])
body.Tip = mirrored2

sketch14 = doc.addObject("Sketcher::SketchObject", "Sketch013")
body.addObject(sketch14)
sketch14.AttachmentSupport = (doc.XZ_Plane, [""])
sketch14.MapMode = "FlatFace"
sketch14.addGeometry(Part.Circle(App.Vector(0, 10, 0), App.Vector(0, 0, 1), 10), False)
sketch14.addGeometry(Part.Circle(App.Vector(0, 10, 0), App.Vector(0, 0, 1), 7), False)
sketch14.addConstraint(Sketcher.Constraint("Coincident", 1, 3, 0, 3))
sketch14.addConstraint(Sketcher.Constraint("PointOnObject", 0, 3, -2))
sketch14.addConstraint(Sketcher.Constraint("Diameter", 1, 14.0))
sketch14.addConstraint(Sketcher.Constraint("Diameter", 0, 19.75))
sketch14.addConstraint(Sketcher.Constraint("DistanceY", -1, 1, 0, 3, 9.875))
pad8 = doc.addObject("PartDesign::Pad", "Pad007")
body.addObject(pad8)
pad8.Profile = sketch14
pad8.Type = "TwoLengths"
pad8.Length = 4
pad8.Length2 = 4

doc.recompute()
